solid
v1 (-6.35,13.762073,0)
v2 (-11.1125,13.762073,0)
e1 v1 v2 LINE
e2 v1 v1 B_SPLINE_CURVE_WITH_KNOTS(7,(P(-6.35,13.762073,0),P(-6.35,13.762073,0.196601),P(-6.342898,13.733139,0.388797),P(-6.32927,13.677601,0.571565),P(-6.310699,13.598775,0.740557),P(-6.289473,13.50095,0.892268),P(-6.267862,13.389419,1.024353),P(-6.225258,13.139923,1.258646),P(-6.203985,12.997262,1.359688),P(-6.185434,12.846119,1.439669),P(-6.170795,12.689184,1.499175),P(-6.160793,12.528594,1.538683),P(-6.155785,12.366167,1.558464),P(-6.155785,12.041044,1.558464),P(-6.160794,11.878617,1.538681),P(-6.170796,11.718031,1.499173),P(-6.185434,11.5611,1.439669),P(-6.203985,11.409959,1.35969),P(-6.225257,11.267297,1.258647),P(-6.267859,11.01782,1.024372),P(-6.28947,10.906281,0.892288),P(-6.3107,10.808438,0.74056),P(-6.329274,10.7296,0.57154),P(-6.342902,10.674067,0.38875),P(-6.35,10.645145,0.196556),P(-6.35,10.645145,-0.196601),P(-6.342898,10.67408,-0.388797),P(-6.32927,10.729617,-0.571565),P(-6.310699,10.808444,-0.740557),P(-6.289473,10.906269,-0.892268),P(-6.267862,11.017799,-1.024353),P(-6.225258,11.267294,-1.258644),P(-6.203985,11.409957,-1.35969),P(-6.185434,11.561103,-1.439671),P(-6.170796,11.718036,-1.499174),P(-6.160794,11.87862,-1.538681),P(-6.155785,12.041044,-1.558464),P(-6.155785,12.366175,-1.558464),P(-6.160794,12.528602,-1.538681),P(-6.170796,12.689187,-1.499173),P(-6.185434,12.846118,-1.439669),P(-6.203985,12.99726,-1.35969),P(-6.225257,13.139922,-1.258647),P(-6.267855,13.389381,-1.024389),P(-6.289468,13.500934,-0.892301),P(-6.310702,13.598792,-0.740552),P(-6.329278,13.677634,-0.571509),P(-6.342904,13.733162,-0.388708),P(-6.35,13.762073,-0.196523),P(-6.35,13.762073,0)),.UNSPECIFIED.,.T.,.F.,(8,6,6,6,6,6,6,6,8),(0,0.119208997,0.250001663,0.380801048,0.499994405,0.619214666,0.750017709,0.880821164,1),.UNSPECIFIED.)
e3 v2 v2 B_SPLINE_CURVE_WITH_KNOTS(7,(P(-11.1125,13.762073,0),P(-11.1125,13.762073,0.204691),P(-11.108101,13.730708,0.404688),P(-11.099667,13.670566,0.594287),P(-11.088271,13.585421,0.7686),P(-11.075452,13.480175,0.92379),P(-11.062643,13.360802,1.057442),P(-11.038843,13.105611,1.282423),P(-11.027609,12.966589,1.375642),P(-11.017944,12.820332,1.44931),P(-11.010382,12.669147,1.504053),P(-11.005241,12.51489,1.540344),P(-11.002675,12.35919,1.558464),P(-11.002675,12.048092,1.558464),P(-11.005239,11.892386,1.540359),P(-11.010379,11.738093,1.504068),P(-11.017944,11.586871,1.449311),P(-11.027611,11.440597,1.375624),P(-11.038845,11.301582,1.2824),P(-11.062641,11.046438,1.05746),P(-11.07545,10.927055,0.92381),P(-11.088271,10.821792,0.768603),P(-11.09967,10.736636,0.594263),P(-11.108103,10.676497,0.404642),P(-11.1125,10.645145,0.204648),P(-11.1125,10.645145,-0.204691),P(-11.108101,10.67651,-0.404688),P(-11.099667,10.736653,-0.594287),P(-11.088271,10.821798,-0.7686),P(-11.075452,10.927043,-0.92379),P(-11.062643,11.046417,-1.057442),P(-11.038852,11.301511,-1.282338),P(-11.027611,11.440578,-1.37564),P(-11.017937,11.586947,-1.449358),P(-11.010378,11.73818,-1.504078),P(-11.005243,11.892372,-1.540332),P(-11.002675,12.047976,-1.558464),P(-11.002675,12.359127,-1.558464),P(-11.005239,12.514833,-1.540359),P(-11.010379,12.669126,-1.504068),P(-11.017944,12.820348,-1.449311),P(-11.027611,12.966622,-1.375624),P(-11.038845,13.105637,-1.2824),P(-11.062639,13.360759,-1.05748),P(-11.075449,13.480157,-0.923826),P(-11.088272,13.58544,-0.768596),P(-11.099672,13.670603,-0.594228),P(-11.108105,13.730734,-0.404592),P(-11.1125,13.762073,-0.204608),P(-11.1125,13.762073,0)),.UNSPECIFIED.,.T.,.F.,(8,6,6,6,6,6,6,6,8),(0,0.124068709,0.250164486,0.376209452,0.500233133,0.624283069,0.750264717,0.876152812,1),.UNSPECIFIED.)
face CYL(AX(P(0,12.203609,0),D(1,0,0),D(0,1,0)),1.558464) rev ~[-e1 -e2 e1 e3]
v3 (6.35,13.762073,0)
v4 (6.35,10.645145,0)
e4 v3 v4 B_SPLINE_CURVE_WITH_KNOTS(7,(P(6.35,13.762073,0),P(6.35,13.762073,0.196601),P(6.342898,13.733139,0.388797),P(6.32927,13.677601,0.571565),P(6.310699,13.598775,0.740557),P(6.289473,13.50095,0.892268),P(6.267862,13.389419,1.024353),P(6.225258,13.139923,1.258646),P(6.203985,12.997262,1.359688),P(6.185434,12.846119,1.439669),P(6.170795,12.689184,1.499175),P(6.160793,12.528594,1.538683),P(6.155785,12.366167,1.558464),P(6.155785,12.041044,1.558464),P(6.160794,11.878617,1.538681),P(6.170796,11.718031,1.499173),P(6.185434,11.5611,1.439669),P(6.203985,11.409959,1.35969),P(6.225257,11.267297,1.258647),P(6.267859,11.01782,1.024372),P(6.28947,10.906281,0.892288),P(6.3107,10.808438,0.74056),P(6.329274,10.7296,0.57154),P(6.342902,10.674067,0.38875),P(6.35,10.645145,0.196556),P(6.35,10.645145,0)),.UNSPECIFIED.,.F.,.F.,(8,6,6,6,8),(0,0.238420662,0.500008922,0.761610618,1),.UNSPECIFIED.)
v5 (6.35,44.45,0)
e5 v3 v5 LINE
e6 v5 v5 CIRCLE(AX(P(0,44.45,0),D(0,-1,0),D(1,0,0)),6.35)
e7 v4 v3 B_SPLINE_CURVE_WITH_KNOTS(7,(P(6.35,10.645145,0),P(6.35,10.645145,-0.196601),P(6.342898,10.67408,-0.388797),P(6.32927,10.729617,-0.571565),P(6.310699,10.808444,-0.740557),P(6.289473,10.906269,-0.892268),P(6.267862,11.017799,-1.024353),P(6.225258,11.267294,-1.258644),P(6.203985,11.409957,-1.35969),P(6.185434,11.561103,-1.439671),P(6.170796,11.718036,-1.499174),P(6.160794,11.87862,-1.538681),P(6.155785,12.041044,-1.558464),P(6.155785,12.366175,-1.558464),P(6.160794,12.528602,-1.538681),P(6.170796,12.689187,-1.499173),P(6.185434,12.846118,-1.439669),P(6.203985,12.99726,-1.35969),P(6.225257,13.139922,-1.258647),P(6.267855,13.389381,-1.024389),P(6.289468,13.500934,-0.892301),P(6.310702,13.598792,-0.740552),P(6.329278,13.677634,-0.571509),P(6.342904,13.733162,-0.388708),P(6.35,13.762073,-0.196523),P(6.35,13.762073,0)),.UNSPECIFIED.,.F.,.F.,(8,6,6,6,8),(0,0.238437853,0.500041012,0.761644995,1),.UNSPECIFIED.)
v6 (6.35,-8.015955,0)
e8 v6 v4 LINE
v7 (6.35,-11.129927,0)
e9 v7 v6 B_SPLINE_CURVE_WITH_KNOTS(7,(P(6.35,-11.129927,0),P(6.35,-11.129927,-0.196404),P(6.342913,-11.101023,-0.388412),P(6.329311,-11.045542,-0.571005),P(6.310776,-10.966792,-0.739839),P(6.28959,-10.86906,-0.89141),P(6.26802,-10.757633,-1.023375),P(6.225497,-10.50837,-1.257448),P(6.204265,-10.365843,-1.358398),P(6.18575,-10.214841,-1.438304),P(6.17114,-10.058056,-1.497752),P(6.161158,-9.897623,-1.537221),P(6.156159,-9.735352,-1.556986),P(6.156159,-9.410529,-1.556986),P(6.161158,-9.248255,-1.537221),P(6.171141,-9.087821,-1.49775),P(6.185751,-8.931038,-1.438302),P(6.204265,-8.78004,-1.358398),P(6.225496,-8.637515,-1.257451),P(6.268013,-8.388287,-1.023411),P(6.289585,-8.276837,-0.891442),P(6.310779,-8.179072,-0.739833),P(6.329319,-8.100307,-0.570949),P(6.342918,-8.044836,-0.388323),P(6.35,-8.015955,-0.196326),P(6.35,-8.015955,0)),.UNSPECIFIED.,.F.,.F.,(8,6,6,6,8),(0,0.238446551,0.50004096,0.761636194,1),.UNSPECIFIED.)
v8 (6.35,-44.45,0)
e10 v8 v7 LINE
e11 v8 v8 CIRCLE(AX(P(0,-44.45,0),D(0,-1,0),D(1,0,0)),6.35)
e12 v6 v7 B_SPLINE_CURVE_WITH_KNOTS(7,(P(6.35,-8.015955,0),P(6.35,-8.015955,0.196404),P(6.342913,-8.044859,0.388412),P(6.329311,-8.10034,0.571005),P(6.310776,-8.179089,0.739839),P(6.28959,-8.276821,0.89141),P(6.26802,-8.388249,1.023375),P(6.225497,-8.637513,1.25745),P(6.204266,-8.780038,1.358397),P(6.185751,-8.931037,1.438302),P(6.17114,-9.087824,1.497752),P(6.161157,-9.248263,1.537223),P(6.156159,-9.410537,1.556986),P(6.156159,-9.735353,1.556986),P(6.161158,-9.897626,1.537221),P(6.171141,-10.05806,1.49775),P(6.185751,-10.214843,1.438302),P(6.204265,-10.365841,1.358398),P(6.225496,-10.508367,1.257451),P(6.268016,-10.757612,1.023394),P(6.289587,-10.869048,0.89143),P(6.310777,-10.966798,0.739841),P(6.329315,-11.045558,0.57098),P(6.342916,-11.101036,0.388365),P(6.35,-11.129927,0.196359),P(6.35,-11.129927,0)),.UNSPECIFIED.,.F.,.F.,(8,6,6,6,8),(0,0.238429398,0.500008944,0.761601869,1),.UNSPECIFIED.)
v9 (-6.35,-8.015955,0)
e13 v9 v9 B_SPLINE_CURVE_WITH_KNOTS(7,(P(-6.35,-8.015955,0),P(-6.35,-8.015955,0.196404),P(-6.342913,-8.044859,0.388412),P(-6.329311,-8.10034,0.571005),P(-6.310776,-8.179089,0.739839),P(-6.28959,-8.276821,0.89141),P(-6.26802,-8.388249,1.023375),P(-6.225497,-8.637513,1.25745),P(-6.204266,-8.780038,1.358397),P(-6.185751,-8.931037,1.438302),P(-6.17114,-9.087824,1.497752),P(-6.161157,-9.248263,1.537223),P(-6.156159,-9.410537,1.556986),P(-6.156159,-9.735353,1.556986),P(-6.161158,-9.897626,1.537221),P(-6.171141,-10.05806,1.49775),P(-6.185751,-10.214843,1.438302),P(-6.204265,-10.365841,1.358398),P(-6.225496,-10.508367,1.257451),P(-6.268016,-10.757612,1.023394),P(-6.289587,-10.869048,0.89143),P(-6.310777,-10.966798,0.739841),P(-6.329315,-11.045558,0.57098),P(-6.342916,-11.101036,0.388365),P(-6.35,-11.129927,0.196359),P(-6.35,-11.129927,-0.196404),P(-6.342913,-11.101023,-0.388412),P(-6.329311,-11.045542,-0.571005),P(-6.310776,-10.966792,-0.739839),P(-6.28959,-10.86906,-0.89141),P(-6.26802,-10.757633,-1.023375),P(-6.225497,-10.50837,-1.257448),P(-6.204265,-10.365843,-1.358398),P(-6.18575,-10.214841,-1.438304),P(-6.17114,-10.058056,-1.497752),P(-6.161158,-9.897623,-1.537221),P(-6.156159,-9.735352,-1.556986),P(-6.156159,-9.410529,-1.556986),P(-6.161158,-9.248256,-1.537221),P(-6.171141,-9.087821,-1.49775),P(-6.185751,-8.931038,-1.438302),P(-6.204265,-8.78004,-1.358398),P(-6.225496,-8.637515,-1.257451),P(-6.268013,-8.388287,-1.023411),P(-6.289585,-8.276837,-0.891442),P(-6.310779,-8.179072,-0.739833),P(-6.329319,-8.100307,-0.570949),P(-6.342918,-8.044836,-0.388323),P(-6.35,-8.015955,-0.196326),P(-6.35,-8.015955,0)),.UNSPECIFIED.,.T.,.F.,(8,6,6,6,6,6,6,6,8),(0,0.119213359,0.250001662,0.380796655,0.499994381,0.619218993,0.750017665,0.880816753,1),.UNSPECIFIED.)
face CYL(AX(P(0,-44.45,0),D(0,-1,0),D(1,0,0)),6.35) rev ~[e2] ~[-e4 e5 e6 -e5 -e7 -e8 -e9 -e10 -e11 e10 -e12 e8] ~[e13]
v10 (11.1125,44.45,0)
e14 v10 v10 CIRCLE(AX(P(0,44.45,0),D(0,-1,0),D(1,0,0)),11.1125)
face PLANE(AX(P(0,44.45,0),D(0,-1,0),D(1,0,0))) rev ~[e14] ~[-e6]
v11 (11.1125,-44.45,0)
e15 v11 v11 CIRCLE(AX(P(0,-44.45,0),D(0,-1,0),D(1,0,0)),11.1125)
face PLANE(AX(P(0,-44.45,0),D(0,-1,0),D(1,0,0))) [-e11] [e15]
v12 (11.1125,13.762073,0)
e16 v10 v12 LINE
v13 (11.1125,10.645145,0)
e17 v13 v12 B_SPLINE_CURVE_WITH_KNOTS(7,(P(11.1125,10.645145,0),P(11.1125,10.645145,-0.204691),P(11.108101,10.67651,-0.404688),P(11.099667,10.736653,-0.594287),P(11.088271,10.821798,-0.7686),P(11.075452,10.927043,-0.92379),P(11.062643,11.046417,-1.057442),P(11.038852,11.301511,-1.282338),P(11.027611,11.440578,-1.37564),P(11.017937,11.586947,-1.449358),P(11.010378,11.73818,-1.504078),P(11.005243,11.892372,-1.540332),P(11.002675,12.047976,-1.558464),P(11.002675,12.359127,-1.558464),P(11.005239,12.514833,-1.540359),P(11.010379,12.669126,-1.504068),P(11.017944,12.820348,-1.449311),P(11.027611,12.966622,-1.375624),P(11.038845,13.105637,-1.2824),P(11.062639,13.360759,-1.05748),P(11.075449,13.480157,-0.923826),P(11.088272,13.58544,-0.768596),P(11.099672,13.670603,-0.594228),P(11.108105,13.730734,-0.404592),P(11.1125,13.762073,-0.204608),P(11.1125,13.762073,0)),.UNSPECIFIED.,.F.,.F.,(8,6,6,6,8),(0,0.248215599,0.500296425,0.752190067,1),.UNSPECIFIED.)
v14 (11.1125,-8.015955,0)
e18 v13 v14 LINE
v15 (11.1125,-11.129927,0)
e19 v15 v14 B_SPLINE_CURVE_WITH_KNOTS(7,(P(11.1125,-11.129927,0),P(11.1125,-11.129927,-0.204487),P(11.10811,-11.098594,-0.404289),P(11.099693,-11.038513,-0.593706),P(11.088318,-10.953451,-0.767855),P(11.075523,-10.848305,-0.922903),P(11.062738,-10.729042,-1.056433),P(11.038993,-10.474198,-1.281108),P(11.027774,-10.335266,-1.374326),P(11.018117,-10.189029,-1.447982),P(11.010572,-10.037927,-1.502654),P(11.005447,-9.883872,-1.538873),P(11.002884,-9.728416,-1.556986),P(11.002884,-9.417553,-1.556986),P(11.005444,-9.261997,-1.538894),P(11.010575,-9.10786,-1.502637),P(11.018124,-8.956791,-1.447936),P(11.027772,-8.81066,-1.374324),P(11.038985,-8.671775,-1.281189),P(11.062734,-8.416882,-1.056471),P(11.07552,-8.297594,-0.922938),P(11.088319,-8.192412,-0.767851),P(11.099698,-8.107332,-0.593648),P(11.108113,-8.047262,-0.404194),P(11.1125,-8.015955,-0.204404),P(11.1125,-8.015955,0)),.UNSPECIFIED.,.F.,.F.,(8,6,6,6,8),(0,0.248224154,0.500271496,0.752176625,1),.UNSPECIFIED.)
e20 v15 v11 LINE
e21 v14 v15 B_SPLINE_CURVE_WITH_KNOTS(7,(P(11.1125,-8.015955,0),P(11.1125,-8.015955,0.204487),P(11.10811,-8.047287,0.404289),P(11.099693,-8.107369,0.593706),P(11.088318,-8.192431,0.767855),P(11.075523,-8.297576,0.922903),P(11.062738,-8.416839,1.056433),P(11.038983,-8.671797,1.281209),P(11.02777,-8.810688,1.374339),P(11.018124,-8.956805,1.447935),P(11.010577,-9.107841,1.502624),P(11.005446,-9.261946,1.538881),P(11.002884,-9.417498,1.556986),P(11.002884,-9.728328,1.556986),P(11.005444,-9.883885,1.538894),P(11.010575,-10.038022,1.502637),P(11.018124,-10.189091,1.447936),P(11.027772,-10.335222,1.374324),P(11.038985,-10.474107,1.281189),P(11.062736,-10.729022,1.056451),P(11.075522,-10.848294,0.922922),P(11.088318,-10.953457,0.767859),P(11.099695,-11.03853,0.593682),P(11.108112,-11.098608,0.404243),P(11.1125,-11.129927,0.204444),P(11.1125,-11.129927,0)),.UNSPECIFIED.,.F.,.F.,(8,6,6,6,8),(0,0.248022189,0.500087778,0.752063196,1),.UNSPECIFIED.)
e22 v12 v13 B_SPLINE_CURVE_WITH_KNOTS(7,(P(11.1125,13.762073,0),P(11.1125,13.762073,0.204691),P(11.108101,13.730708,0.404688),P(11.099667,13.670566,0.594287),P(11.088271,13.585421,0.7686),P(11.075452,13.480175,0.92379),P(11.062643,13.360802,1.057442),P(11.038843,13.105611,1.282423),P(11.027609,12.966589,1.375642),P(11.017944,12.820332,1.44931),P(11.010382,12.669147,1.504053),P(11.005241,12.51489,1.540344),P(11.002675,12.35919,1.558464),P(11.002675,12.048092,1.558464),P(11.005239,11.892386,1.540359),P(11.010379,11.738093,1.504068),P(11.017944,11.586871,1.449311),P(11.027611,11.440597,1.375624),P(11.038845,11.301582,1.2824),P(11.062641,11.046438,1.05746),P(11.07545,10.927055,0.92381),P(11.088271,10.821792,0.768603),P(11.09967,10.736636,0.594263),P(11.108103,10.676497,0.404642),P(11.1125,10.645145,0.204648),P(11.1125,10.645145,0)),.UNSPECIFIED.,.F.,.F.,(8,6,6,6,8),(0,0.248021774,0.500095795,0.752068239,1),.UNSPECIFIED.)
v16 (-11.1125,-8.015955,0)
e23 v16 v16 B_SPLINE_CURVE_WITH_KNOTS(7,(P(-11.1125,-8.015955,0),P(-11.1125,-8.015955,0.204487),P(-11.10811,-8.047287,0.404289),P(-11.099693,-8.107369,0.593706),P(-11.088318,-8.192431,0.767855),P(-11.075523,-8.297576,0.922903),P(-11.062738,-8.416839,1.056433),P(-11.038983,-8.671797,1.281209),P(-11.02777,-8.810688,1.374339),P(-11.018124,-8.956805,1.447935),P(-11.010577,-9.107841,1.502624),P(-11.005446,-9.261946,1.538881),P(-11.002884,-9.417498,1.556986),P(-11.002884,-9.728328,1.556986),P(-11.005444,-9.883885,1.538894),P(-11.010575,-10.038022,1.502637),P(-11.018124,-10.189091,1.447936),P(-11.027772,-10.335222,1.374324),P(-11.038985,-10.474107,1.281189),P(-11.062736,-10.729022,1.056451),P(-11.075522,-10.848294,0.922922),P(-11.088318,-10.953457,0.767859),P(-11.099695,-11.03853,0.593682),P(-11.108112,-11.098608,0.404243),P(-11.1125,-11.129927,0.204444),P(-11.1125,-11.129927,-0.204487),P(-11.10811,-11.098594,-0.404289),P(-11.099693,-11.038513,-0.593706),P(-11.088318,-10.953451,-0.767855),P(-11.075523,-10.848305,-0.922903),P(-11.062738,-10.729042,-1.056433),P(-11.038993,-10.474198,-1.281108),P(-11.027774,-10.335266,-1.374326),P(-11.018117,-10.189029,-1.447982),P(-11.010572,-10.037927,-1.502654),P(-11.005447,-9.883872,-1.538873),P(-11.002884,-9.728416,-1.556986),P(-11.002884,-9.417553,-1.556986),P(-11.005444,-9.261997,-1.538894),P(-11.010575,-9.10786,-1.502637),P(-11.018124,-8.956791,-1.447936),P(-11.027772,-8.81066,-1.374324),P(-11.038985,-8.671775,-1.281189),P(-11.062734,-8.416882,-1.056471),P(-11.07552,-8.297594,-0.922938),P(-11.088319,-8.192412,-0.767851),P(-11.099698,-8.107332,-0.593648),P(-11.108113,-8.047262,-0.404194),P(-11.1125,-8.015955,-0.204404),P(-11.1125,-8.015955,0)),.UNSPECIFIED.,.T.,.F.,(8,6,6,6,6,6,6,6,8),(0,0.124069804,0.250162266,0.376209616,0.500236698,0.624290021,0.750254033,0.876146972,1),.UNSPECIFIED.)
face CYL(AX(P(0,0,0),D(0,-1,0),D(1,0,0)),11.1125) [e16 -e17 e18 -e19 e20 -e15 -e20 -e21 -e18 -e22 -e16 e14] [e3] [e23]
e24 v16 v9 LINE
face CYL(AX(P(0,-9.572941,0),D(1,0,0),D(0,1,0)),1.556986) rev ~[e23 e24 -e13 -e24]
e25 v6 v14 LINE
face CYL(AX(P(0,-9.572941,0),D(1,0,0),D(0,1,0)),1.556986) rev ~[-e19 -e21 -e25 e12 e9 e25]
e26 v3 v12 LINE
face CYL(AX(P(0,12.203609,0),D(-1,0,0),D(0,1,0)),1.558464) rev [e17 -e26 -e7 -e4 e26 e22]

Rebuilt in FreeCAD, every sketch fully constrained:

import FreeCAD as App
import Part
import Sketcher
Q = App.Units.Quantity

doc = App.newDocument("Part")
body = doc.addObject("PartDesign::Body", "Body")

sketch1 = body.newObject("Sketcher::SketchObject", "Sketch")
sketch1.AttachmentSupport = (doc.getObject("XZ_Plane"), [""])
sketch1.MapMode = "FlatFace"
sketch1.addGeometry(Part.Circle(App.Vector(0, 0, 0), App.Vector(0, 0, 1), 11), False)
sketch1.addConstraint([
    Sketcher.Constraint("Coincident", 0, 3, -1, 1),
    Sketcher.Constraint("Diameter", 0, Q("0.875 in")),
])
pad1 = body.newObject("PartDesign::Pad", "Pad")
pad1.Profile = sketch1
pad1.Length = Q("3.5 in")
pad1.Midplane = True

sketch2 = body.newObject("Sketcher::SketchObject", "Sketch001")
sketch2.AttachmentSupport = (doc.getObject("XZ_Plane"), [""])
sketch2.MapMode = "FlatFace"
sketch2.AttachmentOffset = App.Placement(App.Vector(0, 0, 1.75 * 25.4), App.Rotation())
sketch2.addGeometry(Part.Circle(App.Vector(0, 0, 0), App.Vector(0, 0, 1), 6), False)
sketch2.addConstraint([
    Sketcher.Constraint("Coincident", 0, 3, -1, 1),
    Sketcher.Constraint("Diameter", 0, Q("0.5 in")),
])
pocket1 = body.newObject("PartDesign::Pocket", "Pocket")
pocket1.Profile = sketch2
pocket1.Length = Q("3.5 in")

sketch3 = body.newObject("Sketcher::SketchObject", "Sketch002")
sketch3.AttachmentSupport = (doc.getObject("YZ_Plane"), [""])
sketch3.MapMode = "FlatFace"
sketch3.addGeometry([
    Part.Circle(App.Vector(12.2, 0, 0), App.Vector(0, 0, 1), 1.6),
    Part.Circle(App.Vector(-9.6, 0, 0), App.Vector(0, 0, 1), 1.6),
], False)
sketch3.addConstraint([
    Sketcher.Constraint("PointOnObject", 0, 3, -1),
    Sketcher.Constraint("PointOnObject", 1, 3, -1),
    Sketcher.Constraint("Diameter", 1, Q("3.113972 mm")),
    Sketcher.Constraint("Diameter", 0, Q("3.116928 mm")),
    Sketcher.Constraint("DistanceX", -1, 1, 0, 3, Q("12.203609 mm")),
    Sketcher.Constraint("DistanceX", 1, 3, -1, 1, Q("9.572941 mm")),
])
pocket2 = body.newObject("PartDesign::Pocket", "Pocket001")
pocket2.Profile = sketch3
pocket2.Length = Q("1 in")
pocket2.Midplane = True

sketch4 = body.newObject("Sketcher::SketchObject", "Sketch003")
sketch4.AttachmentSupport = (doc.getObject("YZ_Plane"), [""])
sketch4.MapMode = "FlatFace"
sketch4.addGeometry([
    Part.Circle(App.Vector(12.2, 0, 0), App.Vector(0, 0, 1), 1.6),
    Part.Circle(App.Vector(-9.6, 0, 0), App.Vector(0, 0, 1), 1.6),
], False)
sketch4.addConstraint([
    Sketcher.Constraint("PointOnObject", 0, 3, -1),
    Sketcher.Constraint("PointOnObject", 1, 3, -1),
    Sketcher.Constraint("Diameter", 1, Q("3.113972 mm")),
    Sketcher.Constraint("Diameter", 0, Q("3.116928 mm")),
    Sketcher.Constraint("DistanceX", -1, 1, 0, 3, Q("12.203609 mm")),
    Sketcher.Constraint("DistanceX", 1, 3, -1, 1, Q("9.572941 mm")),
])
pocket3 = body.newObject("PartDesign::Pocket", "Pocket002")
pocket3.Profile = sketch4
pocket3.Length = Q("1 in")
pocket3.Midplane = True

doc.recompute()
